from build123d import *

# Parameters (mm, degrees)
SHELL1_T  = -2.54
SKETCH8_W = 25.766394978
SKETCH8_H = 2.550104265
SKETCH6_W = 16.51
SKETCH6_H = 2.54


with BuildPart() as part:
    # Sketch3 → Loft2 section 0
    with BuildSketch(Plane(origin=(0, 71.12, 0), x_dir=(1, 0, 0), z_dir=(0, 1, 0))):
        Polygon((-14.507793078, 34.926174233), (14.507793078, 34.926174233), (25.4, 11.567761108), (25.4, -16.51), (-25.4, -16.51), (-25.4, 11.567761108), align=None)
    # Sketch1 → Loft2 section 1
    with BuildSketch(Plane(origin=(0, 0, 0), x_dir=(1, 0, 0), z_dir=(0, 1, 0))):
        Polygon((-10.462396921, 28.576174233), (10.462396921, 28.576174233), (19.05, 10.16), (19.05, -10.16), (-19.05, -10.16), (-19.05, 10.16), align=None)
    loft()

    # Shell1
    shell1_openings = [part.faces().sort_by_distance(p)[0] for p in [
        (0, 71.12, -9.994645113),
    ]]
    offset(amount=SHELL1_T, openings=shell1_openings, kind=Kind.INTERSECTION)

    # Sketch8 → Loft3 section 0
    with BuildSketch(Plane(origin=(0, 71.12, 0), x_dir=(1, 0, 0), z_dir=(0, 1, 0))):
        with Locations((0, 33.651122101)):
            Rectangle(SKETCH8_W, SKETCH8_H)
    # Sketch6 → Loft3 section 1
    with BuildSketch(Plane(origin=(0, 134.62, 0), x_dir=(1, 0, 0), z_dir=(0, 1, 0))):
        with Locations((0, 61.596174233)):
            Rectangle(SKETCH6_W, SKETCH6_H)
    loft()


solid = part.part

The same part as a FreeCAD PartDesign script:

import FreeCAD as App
import Part
import Sketcher
from FreeCAD import Vector
Q = App.Units.Quantity


def faces_at(feature, points):
    """Names of the faces that lie closest to the given points."""
    faces = feature.Shape.Faces
    near = lambda p: min(range(len(faces)), key=lambda i: faces[i].distToShape(Part.Vertex(*p))[0])
    return sorted({f"Face{near(p) + 1}" for p in points})

doc = App.newDocument("Part")
body = doc.addObject("PartDesign::Body", "Body")

sketch1 = body.newObject("Sketcher::SketchObject", "Sketch")
sketch1.AttachmentSupport = (doc.getObject("XZ_Plane"), [""])
sketch1.MapMode = "FlatFace"
sketch1.AttachmentOffset = App.Placement(Vector(0, 0, -2.8 * 25.4), App.Rotation())
sketch1.addGeometry([
    Part.LineSegment(Vector(15, -35, 0), Vector(-15, -35, 0)),
    Part.LineSegment(Vector(-15, -35, 0), Vector(-25, -12, 0)),
    Part.LineSegment(Vector(-25, -12, 0), Vector(-25, 17, 0)),
    Part.LineSegment(Vector(-25, 17, 0), Vector(25, 17, 0)),
    Part.LineSegment(Vector(25, 17, 0), Vector(25, -12, 0)),
    Part.LineSegment(Vector(25, -12, 0), Vector(15, -35, 0)),
], False)
sketch1.addConstraint([
    Sketcher.Constraint("Coincident", 0, 2, 1, 1),
    Sketcher.Constraint("Coincident", 1, 2, 2, 1),
    Sketcher.Constraint("Coincident", 2, 2, 3, 1),
    Sketcher.Constraint("Coincident", 3, 2, 4, 1),
    Sketcher.Constraint("Coincident", 4, 2, 5, 1),
    Sketcher.Constraint("Coincident", 5, 2, 0, 1),
    Sketcher.Constraint("Horizontal", 0),
    Sketcher.Constraint("Vertical", 2),
    Sketcher.Constraint("Horizontal", 3),
    Sketcher.Constraint("Vertical", 4),
    Sketcher.Constraint("Symmetric", 1, 2, 4, 2, -2),
    Sketcher.Constraint("Equal", 1, 5),
    Sketcher.Constraint("DistanceX", 3, 1, 3, 2, Q("2 in")),
    Sketcher.Constraint("Angle", 1, Q("115 deg")),
    Sketcher.Constraint("DistanceY", -1, 1, 2, 2, Q("0.65 in")),
    Sketcher.Constraint("DistanceY", 2, 1, 2, 2, Q("28.077761 mm")),
    Sketcher.Constraint("DistanceX", 0, 2, 0, 1, Q("29.015586 mm")),
])

sketch2 = body.newObject("Sketcher::SketchObject", "Sketch001")
sketch2.AttachmentSupport = (doc.getObject("XZ_Plane"), [""])
sketch2.MapMode = "FlatFace"
sketch2.addGeometry([
    Part.LineSegment(Vector(10, -29, 0), Vector(-10, -29, 0)),
    Part.LineSegment(Vector(-10, -29, 0), Vector(-19, -10, 0)),
    Part.LineSegment(Vector(-19, -10, 0), Vector(-19, 10, 0)),
    Part.LineSegment(Vector(-19, 10, 0), Vector(19, 10, 0)),
    Part.LineSegment(Vector(19, 10, 0), Vector(19, -10, 0)),
    Part.LineSegment(Vector(19, -10, 0), Vector(10, -29, 0)),
], False)
sketch2.addConstraint([
    Sketcher.Constraint("Coincident", 0, 2, 1, 1),
    Sketcher.Constraint("Coincident", 1, 2, 2, 1),
    Sketcher.Constraint("Coincident", 2, 2, 3, 1),
    Sketcher.Constraint("Coincident", 3, 2, 4, 1),
    Sketcher.Constraint("Coincident", 4, 2, 5, 1),
    Sketcher.Constraint("Coincident", 5, 2, 0, 1),
    Sketcher.Constraint("Horizontal", 0),
    Sketcher.Constraint("Vertical", 2),
    Sketcher.Constraint("Horizontal", 3),
    Sketcher.Constraint("Vertical", 4),
    Sketcher.Constraint("Symmetric", 1, 2, 3, 2, -1, 1),
    Sketcher.Constraint("Horizontal", 1, 2, 4, 2),
    Sketcher.Constraint("Equal", 1, 5),
    Sketcher.Constraint("DistanceX", 3, 1, 3, 2, Q("1.5 in")),
    Sketcher.Constraint("DistanceY", 2, 1, 2, 2, Q("0.8 in")),
    Sketcher.Constraint("Angle", 1, Q("115 deg")),
    Sketcher.Constraint("Distance", 1, Q("0.8 in")),
])

additiveloft = body.newObject("PartDesign::AdditiveLoft", "AdditiveLoft")
additiveloft.Profile = sketch1
additiveloft.Sections = [sketch2]
doc.recompute()

thickness = body.newObject("PartDesign::Thickness", "Thickness")
thickness.Base = (additiveloft, faces_at(additiveloft, [(-1.353, 71.12, -3.933)]))
thickness.Value = Q("0.1 in")
thickness.Reversed = True
thickness.Join = "Intersection"

sketch3 = body.newObject("Sketcher::SketchObject", "Sketch002")
sketch3.AttachmentSupport = (doc.getObject("XZ_Plane"), [""])
sketch3.MapMode = "FlatFace"
sketch3.AttachmentOffset = App.Placement(Vector(0, 0, -2.8 * 25.4), App.Rotation())
sketch3.addGeometry([
    Part.LineSegment(Vector(-12.9, -34.9, 0), Vector(-12.9, -32.4, 0)),
    Part.LineSegment(Vector(-12.9, -32.4, 0), Vector(12.9, -32.4, 0)),
    Part.LineSegment(Vector(12.9, -32.4, 0), Vector(12.9, -34.9, 0)),
    Part.LineSegment(Vector(12.9, -34.9, 0), Vector(-12.9, -34.9, 0)),
], False)
sketch3.addConstraint([
    Sketcher.Constraint("Coincident", 0, 2, 1, 1),
    Sketcher.Constraint("Coincident", 1, 2, 2, 1),
    Sketcher.Constraint("Coincident", 2, 2, 3, 1),
    Sketcher.Constraint("Coincident", 3, 2, 0, 1),
    Sketcher.Constraint("Vertical", 0),
    Sketcher.Constraint("Horizontal", 1),
    Sketcher.Constraint("Vertical", 2),
    Sketcher.Constraint("Horizontal", 3),
    Sketcher.Constraint("DistanceX", 1, 1, 1, 2, Q("25.766395 mm")),
    Sketcher.Constraint("DistanceY", 0, 1, 0, 2, Q("2.550104 mm")),
    Sketcher.Constraint("DistanceY", 0, 2, -1, 1, Q("32.37607 mm")),
    Sketcher.Constraint("DistanceX", 0, 2, -1, 1, Q("12.883197 mm")),
])

sketch4 = body.newObject("Sketcher::SketchObject", "Sketch003")
sketch4.AttachmentSupport = (doc.getObject("XZ_Plane"), [""])
sketch4.MapMode = "FlatFace"
sketch4.AttachmentOffset = App.Placement(Vector(0, 0, -5.3 * 25.4), App.Rotation())
sketch4.addGeometry([
    Part.LineSegment(Vector(-8.3, -62.9, 0), Vector(-8.3, -60.3, 0)),
    Part.LineSegment(Vector(-8.3, -60.3, 0), Vector(8.3, -60.3, 0)),
    Part.LineSegment(Vector(8.3, -60.3, 0), Vector(8.3, -62.9, 0)),
    Part.LineSegment(Vector(8.3, -62.9, 0), Vector(-8.3, -62.9, 0)),
], False)
sketch4.addConstraint([
    Sketcher.Constraint("Coincident", 0, 2, 1, 1),
    Sketcher.Constraint("Coincident", 1, 2, 2, 1),
    Sketcher.Constraint("Coincident", 2, 2, 3, 1),
    Sketcher.Constraint("Coincident", 3, 2, 0, 1),
    Sketcher.Constraint("Vertical", 0),
    Sketcher.Constraint("Horizontal", 1),
    Sketcher.Constraint("Vertical", 2),
    Sketcher.Constraint("Horizontal", 3),
    Sketcher.Constraint("DistanceY", 0, 1, 0, 2, Q("0.1 in")),
    Sketcher.Constraint("DistanceX", 1, 1, 1, 2, Q("0.65 in")),
    Sketcher.Constraint("DistanceX", 0, 2, -1, 1, Q("0.325 in")),
    Sketcher.Constraint("DistanceY", 0, 2, -1, 1, Q("60.326174 mm")),
])

additiveloft2 = body.newObject("PartDesign::AdditiveLoft", "AdditiveLoft001")
additiveloft2.Profile = sketch3
additiveloft2.Sections = [sketch4]

doc.recompute()
